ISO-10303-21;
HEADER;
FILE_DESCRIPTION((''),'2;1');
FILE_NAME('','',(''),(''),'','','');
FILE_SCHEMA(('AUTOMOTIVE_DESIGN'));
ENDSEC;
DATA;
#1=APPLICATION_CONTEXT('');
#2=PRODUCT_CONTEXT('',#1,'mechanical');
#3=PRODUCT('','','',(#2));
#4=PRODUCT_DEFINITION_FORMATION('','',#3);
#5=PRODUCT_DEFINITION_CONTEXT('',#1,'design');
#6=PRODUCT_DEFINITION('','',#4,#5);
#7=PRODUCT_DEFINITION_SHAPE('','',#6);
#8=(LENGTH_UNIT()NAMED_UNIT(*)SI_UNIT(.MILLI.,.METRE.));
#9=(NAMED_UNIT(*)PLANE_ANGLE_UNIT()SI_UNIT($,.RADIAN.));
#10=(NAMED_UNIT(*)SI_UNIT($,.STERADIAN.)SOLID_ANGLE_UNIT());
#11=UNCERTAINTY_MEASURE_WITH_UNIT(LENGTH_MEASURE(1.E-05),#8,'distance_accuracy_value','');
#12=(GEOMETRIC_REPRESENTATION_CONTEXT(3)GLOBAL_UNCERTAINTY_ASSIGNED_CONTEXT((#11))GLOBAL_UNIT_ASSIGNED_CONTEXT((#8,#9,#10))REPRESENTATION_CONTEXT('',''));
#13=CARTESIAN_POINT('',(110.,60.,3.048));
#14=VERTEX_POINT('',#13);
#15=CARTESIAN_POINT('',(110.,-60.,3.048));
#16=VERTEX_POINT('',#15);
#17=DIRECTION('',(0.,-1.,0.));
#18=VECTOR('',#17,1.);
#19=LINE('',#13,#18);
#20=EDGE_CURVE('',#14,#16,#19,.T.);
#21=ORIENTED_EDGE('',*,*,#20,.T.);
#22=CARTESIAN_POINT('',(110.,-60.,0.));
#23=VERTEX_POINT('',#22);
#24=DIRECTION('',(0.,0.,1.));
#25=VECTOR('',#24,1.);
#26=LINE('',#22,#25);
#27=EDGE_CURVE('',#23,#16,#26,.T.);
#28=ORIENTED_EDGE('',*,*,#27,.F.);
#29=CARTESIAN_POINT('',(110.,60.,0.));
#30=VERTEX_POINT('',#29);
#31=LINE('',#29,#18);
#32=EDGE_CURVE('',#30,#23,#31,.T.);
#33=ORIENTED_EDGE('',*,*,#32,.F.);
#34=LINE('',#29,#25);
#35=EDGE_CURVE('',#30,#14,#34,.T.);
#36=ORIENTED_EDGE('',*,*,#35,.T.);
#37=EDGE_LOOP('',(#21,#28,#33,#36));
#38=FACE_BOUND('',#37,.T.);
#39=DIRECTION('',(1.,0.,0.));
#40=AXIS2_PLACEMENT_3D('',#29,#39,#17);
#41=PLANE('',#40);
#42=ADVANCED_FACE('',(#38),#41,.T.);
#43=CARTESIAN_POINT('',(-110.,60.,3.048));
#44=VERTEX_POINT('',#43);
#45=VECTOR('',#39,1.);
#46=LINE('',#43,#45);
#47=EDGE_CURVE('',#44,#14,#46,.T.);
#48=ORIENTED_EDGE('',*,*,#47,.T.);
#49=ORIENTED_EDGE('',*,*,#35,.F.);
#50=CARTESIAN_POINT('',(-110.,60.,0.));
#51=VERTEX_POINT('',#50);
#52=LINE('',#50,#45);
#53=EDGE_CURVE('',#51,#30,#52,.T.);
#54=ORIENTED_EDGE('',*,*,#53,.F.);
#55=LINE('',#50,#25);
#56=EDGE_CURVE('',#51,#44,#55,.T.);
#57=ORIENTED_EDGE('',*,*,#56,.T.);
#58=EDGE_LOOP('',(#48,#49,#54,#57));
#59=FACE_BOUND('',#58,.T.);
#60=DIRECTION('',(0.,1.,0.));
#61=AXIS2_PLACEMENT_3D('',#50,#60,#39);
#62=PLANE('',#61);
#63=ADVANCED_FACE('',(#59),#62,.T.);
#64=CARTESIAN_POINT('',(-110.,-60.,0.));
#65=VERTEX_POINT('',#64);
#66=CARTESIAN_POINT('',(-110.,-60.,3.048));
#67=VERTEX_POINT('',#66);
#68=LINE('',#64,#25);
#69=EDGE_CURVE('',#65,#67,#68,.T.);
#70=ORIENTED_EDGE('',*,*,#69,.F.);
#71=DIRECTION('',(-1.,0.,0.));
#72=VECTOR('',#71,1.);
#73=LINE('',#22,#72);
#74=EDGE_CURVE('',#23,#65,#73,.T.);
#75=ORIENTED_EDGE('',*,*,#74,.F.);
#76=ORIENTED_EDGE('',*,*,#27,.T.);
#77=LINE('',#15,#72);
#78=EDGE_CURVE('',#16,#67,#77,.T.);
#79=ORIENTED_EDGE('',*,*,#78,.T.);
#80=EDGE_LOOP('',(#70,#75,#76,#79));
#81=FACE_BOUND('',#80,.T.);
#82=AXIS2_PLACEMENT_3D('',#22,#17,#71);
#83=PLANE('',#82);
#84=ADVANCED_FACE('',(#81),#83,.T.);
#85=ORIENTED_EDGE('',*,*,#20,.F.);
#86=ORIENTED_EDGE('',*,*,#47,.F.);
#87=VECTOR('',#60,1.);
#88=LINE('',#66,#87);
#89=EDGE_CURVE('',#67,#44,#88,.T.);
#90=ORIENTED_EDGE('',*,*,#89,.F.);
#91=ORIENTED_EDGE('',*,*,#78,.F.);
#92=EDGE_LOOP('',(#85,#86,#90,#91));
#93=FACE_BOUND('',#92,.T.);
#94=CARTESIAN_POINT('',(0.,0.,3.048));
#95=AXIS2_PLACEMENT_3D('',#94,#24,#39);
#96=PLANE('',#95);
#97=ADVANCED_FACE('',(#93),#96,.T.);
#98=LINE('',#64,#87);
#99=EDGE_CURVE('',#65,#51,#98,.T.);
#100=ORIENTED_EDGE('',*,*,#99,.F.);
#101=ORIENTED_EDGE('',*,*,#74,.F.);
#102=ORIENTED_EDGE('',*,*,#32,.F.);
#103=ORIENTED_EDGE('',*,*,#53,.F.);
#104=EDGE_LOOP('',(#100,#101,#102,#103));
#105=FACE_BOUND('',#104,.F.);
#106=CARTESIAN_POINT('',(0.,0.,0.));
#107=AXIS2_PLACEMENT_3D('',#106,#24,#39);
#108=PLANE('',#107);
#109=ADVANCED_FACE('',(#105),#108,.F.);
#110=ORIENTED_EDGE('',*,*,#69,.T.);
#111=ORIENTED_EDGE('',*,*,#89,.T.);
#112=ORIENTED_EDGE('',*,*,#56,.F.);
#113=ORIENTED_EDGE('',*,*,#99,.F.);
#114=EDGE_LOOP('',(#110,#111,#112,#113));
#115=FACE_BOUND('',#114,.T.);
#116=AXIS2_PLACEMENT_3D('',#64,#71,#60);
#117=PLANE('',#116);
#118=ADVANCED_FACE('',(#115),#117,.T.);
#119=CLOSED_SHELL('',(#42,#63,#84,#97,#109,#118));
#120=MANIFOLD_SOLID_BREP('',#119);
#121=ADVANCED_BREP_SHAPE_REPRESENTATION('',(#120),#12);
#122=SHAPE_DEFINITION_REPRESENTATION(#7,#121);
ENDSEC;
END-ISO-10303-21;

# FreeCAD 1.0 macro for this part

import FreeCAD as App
import Part
import Sketcher
from FreeCAD import Vector
Q = App.Units.Quantity

doc = App.newDocument("Part")
body = doc.addObject("PartDesign::Body", "Body")

# Sketch on XY plane
sketch1 = doc.addObject("Sketcher::SketchObject", "Sketch")
body.addObject(sketch1)
sketch1.AttachmentSupport = (doc.XY_Plane, [""])
sketch1.MapMode = "FlatFace"
sketch1.addGeometry([
    Part.LineSegment(Vector(110, 60, 0), Vector(-110, 60, 0)),
    Part.LineSegment(Vector(-110, 60, 0), Vector(-110, -60, 0)),
    Part.LineSegment(Vector(-110, -60, 0), Vector(110, -60, 0)),
    Part.LineSegment(Vector(110, -60, 0), Vector(110, 60, 0)),
], False)
sketch1.addConstraint([
    Sketcher.Constraint("Coincident", 0, 2, 1, 1),
    Sketcher.Constraint("Coincident", 1, 2, 2, 1),
    Sketcher.Constraint("Coincident", 2, 2, 3, 1),
    Sketcher.Constraint("Coincident", 3, 2, 0, 1),
    Sketcher.Constraint("Horizontal", 0),
    Sketcher.Constraint("Vertical", 1),
    Sketcher.Constraint("Horizontal", 2),
    Sketcher.Constraint("Vertical", 3),
    Sketcher.Constraint("Symmetric", 0, 2, 2, 2, -1, 1),
    Sketcher.Constraint("DistanceX", 0, 2, 0, 1, Q("220 mm")),
    Sketcher.Constraint("DistanceY", 1, 2, 1, 1, Q("120 mm")),
])
pad1 = doc.addObject("PartDesign::Pad", "Pad")
body.addObject(pad1)
pad1.Profile = sketch1
pad1.Length = 3.048

doc.recompute()
